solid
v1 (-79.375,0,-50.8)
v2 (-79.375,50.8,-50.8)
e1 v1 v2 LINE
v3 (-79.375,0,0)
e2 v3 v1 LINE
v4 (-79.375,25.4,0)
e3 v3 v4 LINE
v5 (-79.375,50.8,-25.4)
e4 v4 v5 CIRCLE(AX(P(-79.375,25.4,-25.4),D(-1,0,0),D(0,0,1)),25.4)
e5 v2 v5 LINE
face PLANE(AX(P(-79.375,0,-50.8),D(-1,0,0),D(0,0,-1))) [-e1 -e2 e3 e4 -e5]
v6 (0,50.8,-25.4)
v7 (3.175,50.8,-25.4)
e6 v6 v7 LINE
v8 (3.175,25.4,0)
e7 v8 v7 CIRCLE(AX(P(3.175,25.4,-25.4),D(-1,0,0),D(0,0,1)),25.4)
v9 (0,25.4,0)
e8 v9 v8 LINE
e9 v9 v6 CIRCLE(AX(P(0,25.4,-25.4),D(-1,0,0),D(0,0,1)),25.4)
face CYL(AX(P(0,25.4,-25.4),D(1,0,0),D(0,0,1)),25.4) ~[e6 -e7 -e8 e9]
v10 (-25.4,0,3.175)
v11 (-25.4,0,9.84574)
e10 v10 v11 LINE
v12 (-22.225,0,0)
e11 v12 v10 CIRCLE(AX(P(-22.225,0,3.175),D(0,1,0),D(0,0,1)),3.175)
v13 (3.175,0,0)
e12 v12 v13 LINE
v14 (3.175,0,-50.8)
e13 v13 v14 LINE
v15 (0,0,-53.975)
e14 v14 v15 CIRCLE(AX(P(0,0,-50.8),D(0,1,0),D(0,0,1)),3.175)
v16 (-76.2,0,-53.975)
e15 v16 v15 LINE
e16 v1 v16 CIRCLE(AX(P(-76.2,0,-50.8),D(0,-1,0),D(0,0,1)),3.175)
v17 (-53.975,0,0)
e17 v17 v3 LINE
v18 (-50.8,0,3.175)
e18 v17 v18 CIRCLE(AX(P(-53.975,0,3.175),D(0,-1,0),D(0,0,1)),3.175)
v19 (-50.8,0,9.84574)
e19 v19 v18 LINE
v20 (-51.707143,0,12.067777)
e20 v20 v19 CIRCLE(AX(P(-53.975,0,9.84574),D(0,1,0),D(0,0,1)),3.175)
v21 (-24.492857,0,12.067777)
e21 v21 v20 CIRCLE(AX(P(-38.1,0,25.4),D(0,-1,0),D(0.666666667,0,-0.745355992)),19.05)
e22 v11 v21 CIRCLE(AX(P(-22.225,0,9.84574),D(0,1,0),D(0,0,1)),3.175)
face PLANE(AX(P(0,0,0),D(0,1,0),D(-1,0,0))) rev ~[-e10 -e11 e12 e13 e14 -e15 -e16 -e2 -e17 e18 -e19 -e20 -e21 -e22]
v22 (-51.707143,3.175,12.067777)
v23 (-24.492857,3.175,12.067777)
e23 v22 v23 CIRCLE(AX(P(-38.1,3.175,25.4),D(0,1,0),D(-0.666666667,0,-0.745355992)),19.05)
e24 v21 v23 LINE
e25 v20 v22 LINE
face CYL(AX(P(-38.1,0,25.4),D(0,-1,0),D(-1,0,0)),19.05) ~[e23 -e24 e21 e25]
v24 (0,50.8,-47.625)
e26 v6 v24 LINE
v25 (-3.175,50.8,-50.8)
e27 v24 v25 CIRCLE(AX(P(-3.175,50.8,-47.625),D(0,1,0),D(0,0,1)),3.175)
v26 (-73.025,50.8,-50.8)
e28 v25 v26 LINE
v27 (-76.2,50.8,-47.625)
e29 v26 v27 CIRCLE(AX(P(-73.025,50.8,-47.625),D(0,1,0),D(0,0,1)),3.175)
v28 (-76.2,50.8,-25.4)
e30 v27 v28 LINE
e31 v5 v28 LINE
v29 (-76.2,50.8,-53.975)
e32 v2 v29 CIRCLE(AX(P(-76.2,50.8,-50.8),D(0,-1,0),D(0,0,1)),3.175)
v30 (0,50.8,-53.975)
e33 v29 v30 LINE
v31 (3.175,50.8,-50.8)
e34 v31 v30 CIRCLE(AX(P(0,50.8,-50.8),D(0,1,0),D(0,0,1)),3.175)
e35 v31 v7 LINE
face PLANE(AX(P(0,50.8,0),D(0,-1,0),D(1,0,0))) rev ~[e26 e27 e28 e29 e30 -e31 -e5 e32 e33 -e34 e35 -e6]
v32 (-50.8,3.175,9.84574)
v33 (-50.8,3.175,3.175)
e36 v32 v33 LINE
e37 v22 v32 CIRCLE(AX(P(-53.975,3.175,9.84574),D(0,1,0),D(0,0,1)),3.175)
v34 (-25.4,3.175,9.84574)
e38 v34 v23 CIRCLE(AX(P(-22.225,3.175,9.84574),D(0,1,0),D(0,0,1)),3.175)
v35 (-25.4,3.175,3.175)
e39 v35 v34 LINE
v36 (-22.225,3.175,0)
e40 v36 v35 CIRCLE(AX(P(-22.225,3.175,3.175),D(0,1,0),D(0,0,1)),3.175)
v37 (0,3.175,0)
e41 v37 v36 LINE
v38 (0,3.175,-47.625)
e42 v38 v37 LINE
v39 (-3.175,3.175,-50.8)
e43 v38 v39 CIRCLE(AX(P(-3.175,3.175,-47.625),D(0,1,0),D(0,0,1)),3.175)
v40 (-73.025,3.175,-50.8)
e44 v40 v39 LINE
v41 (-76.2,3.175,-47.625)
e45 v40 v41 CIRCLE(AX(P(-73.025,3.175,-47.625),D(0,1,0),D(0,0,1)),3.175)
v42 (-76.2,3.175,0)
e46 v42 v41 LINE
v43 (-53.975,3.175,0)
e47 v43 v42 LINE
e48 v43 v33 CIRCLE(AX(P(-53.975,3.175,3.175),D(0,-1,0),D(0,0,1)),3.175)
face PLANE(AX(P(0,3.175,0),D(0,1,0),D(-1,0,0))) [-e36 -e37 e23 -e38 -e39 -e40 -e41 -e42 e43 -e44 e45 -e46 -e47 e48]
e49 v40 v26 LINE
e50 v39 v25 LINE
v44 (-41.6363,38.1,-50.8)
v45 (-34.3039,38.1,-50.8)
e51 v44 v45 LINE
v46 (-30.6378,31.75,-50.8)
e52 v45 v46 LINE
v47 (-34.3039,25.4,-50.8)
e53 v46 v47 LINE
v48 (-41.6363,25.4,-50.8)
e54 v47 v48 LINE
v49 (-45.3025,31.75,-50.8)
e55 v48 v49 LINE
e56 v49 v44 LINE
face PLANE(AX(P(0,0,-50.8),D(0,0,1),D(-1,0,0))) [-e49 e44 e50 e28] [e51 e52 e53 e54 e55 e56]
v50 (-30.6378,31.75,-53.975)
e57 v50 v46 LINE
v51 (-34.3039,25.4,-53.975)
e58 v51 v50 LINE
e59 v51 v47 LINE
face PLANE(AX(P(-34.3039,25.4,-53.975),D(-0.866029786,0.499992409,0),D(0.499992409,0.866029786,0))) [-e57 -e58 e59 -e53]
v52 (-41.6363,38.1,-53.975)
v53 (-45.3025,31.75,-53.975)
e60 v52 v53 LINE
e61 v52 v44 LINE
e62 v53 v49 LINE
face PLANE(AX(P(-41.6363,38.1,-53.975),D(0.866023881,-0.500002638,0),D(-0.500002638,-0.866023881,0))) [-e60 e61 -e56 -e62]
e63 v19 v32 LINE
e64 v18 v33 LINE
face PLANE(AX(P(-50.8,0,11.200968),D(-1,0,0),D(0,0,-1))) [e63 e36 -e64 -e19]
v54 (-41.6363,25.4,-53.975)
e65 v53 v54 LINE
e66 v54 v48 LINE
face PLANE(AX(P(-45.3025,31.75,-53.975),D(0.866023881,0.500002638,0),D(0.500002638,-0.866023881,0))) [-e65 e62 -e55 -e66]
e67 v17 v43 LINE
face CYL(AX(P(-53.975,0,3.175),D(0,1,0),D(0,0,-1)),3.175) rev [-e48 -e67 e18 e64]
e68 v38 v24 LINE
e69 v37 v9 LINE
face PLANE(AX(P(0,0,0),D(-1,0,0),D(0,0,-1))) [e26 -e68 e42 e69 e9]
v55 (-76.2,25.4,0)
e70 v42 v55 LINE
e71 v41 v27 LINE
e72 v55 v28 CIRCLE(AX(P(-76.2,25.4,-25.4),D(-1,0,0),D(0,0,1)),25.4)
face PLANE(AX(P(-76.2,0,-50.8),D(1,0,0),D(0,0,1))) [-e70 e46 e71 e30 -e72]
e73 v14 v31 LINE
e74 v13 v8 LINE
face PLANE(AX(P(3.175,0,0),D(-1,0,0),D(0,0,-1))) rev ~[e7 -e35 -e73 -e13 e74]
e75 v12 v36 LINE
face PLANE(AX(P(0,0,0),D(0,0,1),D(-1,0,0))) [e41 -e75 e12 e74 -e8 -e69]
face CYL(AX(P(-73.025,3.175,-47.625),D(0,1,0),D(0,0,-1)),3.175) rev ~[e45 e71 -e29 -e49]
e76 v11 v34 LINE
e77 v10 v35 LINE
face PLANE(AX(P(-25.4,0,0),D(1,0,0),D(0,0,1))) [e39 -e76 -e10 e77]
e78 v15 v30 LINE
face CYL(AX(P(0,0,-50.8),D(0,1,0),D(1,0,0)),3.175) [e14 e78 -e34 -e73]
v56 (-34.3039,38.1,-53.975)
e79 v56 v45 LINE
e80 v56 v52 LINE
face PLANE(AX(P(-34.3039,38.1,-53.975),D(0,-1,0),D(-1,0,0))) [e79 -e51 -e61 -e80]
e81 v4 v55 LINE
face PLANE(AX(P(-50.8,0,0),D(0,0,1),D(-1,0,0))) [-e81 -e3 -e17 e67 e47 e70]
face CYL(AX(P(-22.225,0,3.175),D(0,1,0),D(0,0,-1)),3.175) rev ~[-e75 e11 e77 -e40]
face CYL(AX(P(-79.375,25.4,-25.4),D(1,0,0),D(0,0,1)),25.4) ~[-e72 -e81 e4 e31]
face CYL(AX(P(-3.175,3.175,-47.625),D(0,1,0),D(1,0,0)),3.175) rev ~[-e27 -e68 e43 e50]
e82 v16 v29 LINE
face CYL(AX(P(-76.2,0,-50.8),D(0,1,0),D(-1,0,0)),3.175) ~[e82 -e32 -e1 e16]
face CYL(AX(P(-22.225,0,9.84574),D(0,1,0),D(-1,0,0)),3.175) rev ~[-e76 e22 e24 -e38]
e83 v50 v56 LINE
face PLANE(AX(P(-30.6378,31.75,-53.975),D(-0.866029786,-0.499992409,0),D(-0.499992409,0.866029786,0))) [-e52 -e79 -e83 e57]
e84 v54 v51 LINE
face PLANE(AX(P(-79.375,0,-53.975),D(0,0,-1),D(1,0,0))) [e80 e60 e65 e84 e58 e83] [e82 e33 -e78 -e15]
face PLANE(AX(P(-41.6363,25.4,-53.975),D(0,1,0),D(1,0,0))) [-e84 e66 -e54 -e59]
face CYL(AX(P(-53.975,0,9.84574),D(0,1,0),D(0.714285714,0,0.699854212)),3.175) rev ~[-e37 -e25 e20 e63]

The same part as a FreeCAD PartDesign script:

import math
import FreeCAD as App
import Part
import Sketcher
from FreeCAD import Vector
Q = App.Units.Quantity


def edges_at(feature, points):
    """Names of the edges that pass closest to the given points."""
    edges = feature.Shape.Edges
    near = lambda p: min(range(len(edges)), key=lambda i: edges[i].distToShape(Part.Vertex(*p))[0])
    return sorted({f"Edge{near(p) + 1}" for p in points})


def add_polygon(sketch, points):
    """Adds a closed chain of lines whose ends are joined by coincident constraints."""
    first, n = sketch.GeometryCount, len(points)
    for a, b in zip(points, points[1:] + points[:1]):
        sketch.addGeometry(Part.LineSegment(App.Vector(*a, 0), App.Vector(*b, 0)), False)
    for i in range(n):
        sketch.addConstraint(Sketcher.Constraint("Coincident", first + i, 2, first + (i + 1) % n, 1))

doc = App.newDocument("Part")
body = doc.addObject("PartDesign::Body", "Body")

# Sketch on XZ plane
sketch1 = body.newObject("Sketcher::SketchObject", "Sketch")
sketch1.AttachmentSupport = (doc.getObject("XZ_Plane"), [""])
sketch1.MapMode = "FlatFace"
sketch1.addGeometry(Part.LineSegment(Vector(-25.4, 0, 0), Vector(0, 0, 0)), False)
sketch1.addGeometry(Part.LineSegment(Vector(0, 0, 0), Vector(0, -50.8, 0)), False)
sketch1.addGeometry(Part.LineSegment(Vector(0, -50.8, 0), Vector(-76.2, -50.8, 0)), False)
sketch1.addGeometry(Part.LineSegment(Vector(-76.2, -50.8, 0), Vector(-76.2, 0, 0)), False)
sketch1.addGeometry(Part.LineSegment(Vector(-76.2, 0, 0), Vector(-50.8, 0, 0)), False)
sketch1.addGeometry(Part.LineSegment(Vector(-50.8, 0, 0), Vector(-50.8, 11.200968, 0)), False)
sketch1.addGeometry(Part.ArcOfCircle(Part.Circle(Vector(-38.1, 25.4, 0), Vector(0, 0, 1), 19.05), math.radians(-48.189685), math.radians(228.189685)), False)
sketch1.addGeometry(Part.LineSegment(Vector(-25.4, 11.200968, 0), Vector(-25.4, 0, 0)), False)
sketch1.addConstraint(Sketcher.Constraint("Coincident", 0, 2, 1, 1))
sketch1.addConstraint(Sketcher.Constraint("Coincident", 1, 2, 2, 1))
sketch1.addConstraint(Sketcher.Constraint("Coincident", 2, 2, 3, 1))
sketch1.addConstraint(Sketcher.Constraint("Coincident", 3, 2, 4, 1))
sketch1.addConstraint(Sketcher.Constraint("Coincident", 4, 2, 5, 1))
sketch1.addConstraint(Sketcher.Constraint("Coincident", 5, 2, 6, 2))
sketch1.addConstraint(Sketcher.Constraint("Coincident", 6, 1, 7, 1))
sketch1.addConstraint(Sketcher.Constraint("Coincident", 7, 2, 0, 1))
sketch1.addConstraint(Sketcher.Constraint("Horizontal", 0))
sketch1.addConstraint(Sketcher.Constraint("Vertical", 1))
sketch1.addConstraint(Sketcher.Constraint("Horizontal", 2))
sketch1.addConstraint(Sketcher.Constraint("Vertical", 3))
sketch1.addConstraint(Sketcher.Constraint("Horizontal", 4))
sketch1.addConstraint(Sketcher.Constraint("Vertical", 5))
sketch1.addConstraint(Sketcher.Constraint("Vertical", 7))
sketch1.addConstraint(Sketcher.Constraint("Coincident", 0, 2, -1, 1))
sketch1.addConstraint(Sketcher.Constraint("PointOnObject", 3, 2, -1))
sketch1.addConstraint(Sketcher.Constraint("Horizontal", 5, 2, 6, 1))
sketch1.addConstraint(Sketcher.Constraint("Equal", 0, 4))
sketch1.addConstraint(Sketcher.Constraint("DistanceX", 0, 1, 0, 2, Q("1 in")))
sketch1.addConstraint(Sketcher.Constraint("DistanceX", 2, 2, 2, 1, Q("3 in")))
sketch1.addConstraint(Sketcher.Constraint("DistanceY", 1, 2, 1, 1, Q("2 in")))
sketch1.addConstraint(Sketcher.Constraint("Radius", 6, Q("0.75 in")))
sketch1.addConstraint(Sketcher.Constraint("DistanceY", -1, 1, 6, 3, Q("1 in")))
pad1 = body.newObject("PartDesign::Pad", "Pad")
pad1.Profile = sketch1
pad1.Length = Q("0.125 in")
pad1.Reversed = True
doc.recompute()

fillet = body.newObject("PartDesign::Fillet", "Fillet")
fillet.Base = (pad1, edges_at(pad1, [
    (-50.8, 1.587, 11.201),
    (-50.8, 1.587, 0),
    (-25.4, 1.587, 0),
    (-25.4, 1.587, 11.201),
]))
fillet.Radius = Q("0.125 in")

# Sketch on XZ plane
sketch2 = body.newObject("Sketcher::SketchObject", "Sketch001")
sketch2.AttachmentSupport = (doc.getObject("XZ_Plane"), [""])
sketch2.MapMode = "FlatFace"
add_polygon(sketch2, [(3.175, 0), (0, 0), (0, -50.8), (-76.2, -50.8), (-76.2, 0), (-79.375, 0), (-79.375, -53.975), (3.175, -53.975)])  # lines 0-7
sketch2.addConstraint(Sketcher.Constraint("Horizontal", 0))
sketch2.addConstraint(Sketcher.Constraint("Vertical", 1))
sketch2.addConstraint(Sketcher.Constraint("Horizontal", 2))
sketch2.addConstraint(Sketcher.Constraint("Vertical", 3))
sketch2.addConstraint(Sketcher.Constraint("Horizontal", 4))
sketch2.addConstraint(Sketcher.Constraint("Vertical", 5))
sketch2.addConstraint(Sketcher.Constraint("Horizontal", 6))
sketch2.addConstraint(Sketcher.Constraint("Vertical", 7))
sketch2.addConstraint(Sketcher.Constraint("Coincident", 0, 2, -1, 1))
sketch2.addConstraint(Sketcher.Constraint("PointOnObject", 3, 2, -1))
sketch2.addConstraint(Sketcher.Constraint("Equal", 0, 4))
sketch2.addConstraint(Sketcher.Constraint("DistanceX", 0, 2, 0, 1, Q("0.125 in")))
sketch2.addConstraint(Sketcher.Constraint("DistanceX", 2, 2, 2, 1, Q("3 in")))
sketch2.addConstraint(Sketcher.Constraint("DistanceY", 1, 2, 1, 1, Q("2 in")))
sketch2.addConstraint(Sketcher.Constraint("DistanceY", 5, 2, 2, 2, Q("0.125 in")))
pad2 = body.newObject("PartDesign::Pad", "Pad001")
pad2.Profile = sketch2
pad2.Length = Q("2 in")
pad2.Reversed = True
doc.recompute()

fillet2 = body.newObject("PartDesign::Fillet", "Fillet001")
fillet2.Base = (pad2, edges_at(pad2, [
    (3.175, 25.4, -53.975),
    (-79.375, 25.4, -53.975),
    (-76.2, 26.988, -50.8),
    (0, 26.988, -50.8),
]))
fillet2.Radius = Q("0.125 in")
doc.recompute()

fillet3 = body.newObject("PartDesign::Fillet", "Fillet002")
fillet3.Base = (fillet2, edges_at(fillet2, [(1.587, 50.8, 0), (-77.787, 50.8, 0)]))
fillet3.Radius = Q("1 in")

# Sketch on XY plane
sketch3 = body.newObject("Sketcher::SketchObject", "Sketch002")
sketch3.AttachmentSupport = (doc.getObject("XY_Plane"), [""])
sketch3.MapMode = "FlatFace"
sketch3.AttachmentOffset = App.Placement(Vector(0, 0, -2.125 * 25.4), App.Rotation())
add_polygon(sketch3, [(-41.6363, 38.1), (-34.3039, 38.1), (-30.6378, 31.75), (-34.3039, 25.4), (-41.6363, 25.4), (-45.3025, 31.75)])  # lines 0-5
sketch3.addConstraint(Sketcher.Constraint("Horizontal", 0))
sketch3.addConstraint(Sketcher.Constraint("Horizontal", 3))
sketch3.addConstraint(Sketcher.Constraint("Parallel", 1, 4))
sketch3.addConstraint(Sketcher.Constraint("Parallel", 2, 5))
sketch3.addConstraint(Sketcher.Constraint("Horizontal", 1, 2, 4, 2))
sketch3.addConstraint(Sketcher.Constraint("Vertical", 0, 2, 2, 2))
sketch3.addConstraint(Sketcher.Constraint("Vertical", 3, 2, 5, 2))
sketch3.addConstraint(Sketcher.Constraint("DistanceY", 2, 2, 0, 2, Q("0.5 in")))
sketch3.addConstraint(Sketcher.Constraint("DistanceY", -1, 1, 2, 2, Q("1 in")))
sketch3.addConstraint(Sketcher.Constraint("Angle", 1, Q("-60.0005 deg")))
sketch3.addConstraint(Sketcher.Constraint("DistanceX", 3, 2, 1, 2, Q("0.433 in")))
sketch3.addConstraint(Sketcher.Constraint("DistanceX", 0, 2, -1, 1, 34.304))
pocket1 = body.newObject("PartDesign::Pocket", "Pocket")
pocket1.Profile = sketch3
pocket1.Length = Q("1 in")
pocket1.Reversed = True

doc.recompute()
